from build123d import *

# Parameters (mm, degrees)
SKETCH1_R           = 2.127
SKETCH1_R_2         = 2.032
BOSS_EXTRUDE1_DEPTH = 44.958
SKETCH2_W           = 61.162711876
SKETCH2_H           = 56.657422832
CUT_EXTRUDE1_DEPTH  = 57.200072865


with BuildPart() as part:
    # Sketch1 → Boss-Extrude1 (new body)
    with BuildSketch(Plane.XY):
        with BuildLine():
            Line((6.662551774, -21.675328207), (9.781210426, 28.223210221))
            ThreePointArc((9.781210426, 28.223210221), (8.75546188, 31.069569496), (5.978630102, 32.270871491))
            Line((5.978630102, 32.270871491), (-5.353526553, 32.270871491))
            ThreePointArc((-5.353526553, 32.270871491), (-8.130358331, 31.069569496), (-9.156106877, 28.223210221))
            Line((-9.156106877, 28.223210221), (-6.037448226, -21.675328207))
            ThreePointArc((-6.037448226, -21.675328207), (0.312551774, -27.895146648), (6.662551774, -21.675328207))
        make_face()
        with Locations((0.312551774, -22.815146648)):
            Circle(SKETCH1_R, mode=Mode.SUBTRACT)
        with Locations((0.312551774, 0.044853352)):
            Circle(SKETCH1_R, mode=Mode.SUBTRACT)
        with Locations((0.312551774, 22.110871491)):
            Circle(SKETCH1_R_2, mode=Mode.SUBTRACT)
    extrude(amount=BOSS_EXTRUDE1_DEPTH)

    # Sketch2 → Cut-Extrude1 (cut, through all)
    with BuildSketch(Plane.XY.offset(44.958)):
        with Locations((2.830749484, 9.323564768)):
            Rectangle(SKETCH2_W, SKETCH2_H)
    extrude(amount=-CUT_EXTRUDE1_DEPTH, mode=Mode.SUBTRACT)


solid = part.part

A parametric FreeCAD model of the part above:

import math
import FreeCAD as App
import Part
import Sketcher

V = App.Vector
Q = App.Units.Quantity

doc = App.newDocument("Part")
params = doc.addObject("Spreadsheet::Sheet", "Params")
for row, (alias, value) in enumerate([
    ("sketch1_diameter", "0.16 in"),
    ("sketch1_radius", "0.15 in"),
    ("sketch1_radius2", "0.15 in"),
    ("pad1_length", "1.77 in"),
], start=1):
    params.set(f"A{row}", alias)
    params.set(f"B{row}", "=" + value)
    params.setAlias(f"B{row}", alias)

body = doc.addObject("PartDesign::Body", "Body")

sketch1 = body.newObject("Sketcher::SketchObject", "Sketch")
sketch1.AttachmentSupport = (doc.getObject("XY_Plane"), [""])
sketch1.MapMode = "FlatFace"
sketch1.addGeometry(Part.LineSegment(V(6.662552, -21.675328, 0), V(9.78121, 28.22321, 0)), False)
sketch1.addGeometry(Part.ArcOfCircle(Part.Circle(V(5.97863, 28.460871, 0), V(0, 0, 1), 3.81), math.radians(-3.576334), math.radians(90)), False)
sketch1.addGeometry(Part.LineSegment(V(5.97863, 32.270871, 0), V(-5.353527, 32.270871, 0)), False)
sketch1.addGeometry(Part.ArcOfCircle(Part.Circle(V(-5.353527, 28.460871, 0), V(0, 0, 1), 3.81), math.radians(90), math.radians(183.576334)), False)
sketch1.addGeometry(Part.LineSegment(V(-9.156107, 28.22321, 0), V(-6.037448, -21.675328, 0)), False)
sketch1.addGeometry(Part.ArcOfCircle(Part.Circle(V(0.312552, -21.543784, 0), V(0, 0, 1), 6.351362), math.radians(-178.813255), math.radians(-1.186745)), False)
sketch1.addGeometry(Part.Circle(V(0.312552, -22.815147, 0), V(0, 0, 1), 2.127), False)
sketch1.addGeometry(Part.Circle(V(0.312552, 0.044853, 0), V(0, 0, 1), 2.127), False)
sketch1.addGeometry(Part.Circle(V(0.312552, 22.110871, 0), V(0, 0, 1), 2.032), False)
sketch1.addConstraint(Sketcher.Constraint("Coincident", 0, 2, 1, 1))
sketch1.addConstraint(Sketcher.Constraint("Coincident", 1, 2, 2, 1))
sketch1.addConstraint(Sketcher.Constraint("Coincident", 2, 2, 3, 1))
sketch1.addConstraint(Sketcher.Constraint("Coincident", 3, 2, 4, 1))
sketch1.addConstraint(Sketcher.Constraint("Coincident", 4, 2, 5, 1))
sketch1.addConstraint(Sketcher.Constraint("Coincident", 5, 2, 0, 1))
sketch1.addConstraint(Sketcher.Constraint("Horizontal", 2))
sketch1.addConstraint(Sketcher.Constraint("Diameter", 8, Q("0.16 in")))
sketch1.addConstraint(Sketcher.Constraint("Radius", 1, Q("0.15 in")))
sketch1.addConstraint(Sketcher.Constraint("Radius", 3, Q("0.15 in")))
sketch1.addConstraint(Sketcher.Constraint("DistanceY", 6, 3, 7, 3, Q("0.9 in")))
sketch1.addConstraint(Sketcher.Constraint("DistanceY", 8, 3, 1, 2, Q("0.4 in")))
sketch1.addConstraint(Sketcher.Constraint("DistanceX", 4, 2, 5, 2, Q("0.5 in")))
sketch1.addConstraint(Sketcher.Constraint("Diameter", 6, Q("4.254 mm")))
sketch1.addConstraint(Sketcher.Constraint("Diameter", 7, Q("4.254 mm")))
sketch1.addConstraint(Sketcher.Constraint("DistanceX", 4, 2, 5, 3, Q("0.25 in")))
sketch1.addConstraint(Sketcher.Constraint("DistanceX", 4, 2, 6, 3, Q("0.25 in")))
sketch1.addConstraint(Sketcher.Constraint("DistanceX", 4, 2, 7, 3, Q("0.25 in")))
sketch1.addConstraint(Sketcher.Constraint("DistanceX", 4, 2, 8, 3, Q("0.25 in")))
sketch1.addConstraint(Sketcher.Constraint("Radius", 5, Q("6.351362 mm")))
sketch1.addConstraint(Sketcher.Constraint("Distance", 0, Q("49.995902 mm")))
sketch1.addConstraint(Sketcher.Constraint("Distance", 4, Q("49.995902 mm")))
sketch1.addConstraint(Sketcher.Constraint("DistanceY", 4, 2, 8, 3, Q("43.7862 mm")))
sketch1.addConstraint(Sketcher.Constraint("DistanceX", 2, 2, 2, 1, Q("11.332157 mm")))
sketch1.addConstraint(Sketcher.Constraint("DistanceX", -1, 1, 1, 3, Q("5.97863 mm")))
sketch1.addConstraint(Sketcher.Constraint("DistanceY", -1, 1, 1, 3, Q("28.460871 mm")))
sketch1.addConstraint(Sketcher.Constraint("DistanceX", -1, 1, 5, 3, Q("0.312552 mm")))
sketch1.addConstraint(Sketcher.Constraint("DistanceX", -1, 1, 1, 2, Q("5.97863 mm")))
sketch1.addConstraint(Sketcher.Constraint("DistanceY", -1, 1, 3, 2, Q("28.22321 mm")))
sketch1.addConstraint(Sketcher.Constraint("DistanceY", 6, 3, 3, 3, Q("51.276018 mm")))
sketch1.setExpression("Constraints[7]", "Params.sketch1_diameter")
sketch1.setExpression("Constraints[8]", "Params.sketch1_radius")
sketch1.setExpression("Constraints[9]", "Params.sketch1_radius2")
pad1 = body.newObject("PartDesign::Pad", "Pad")
pad1.Profile = sketch1
pad1.setExpression("Length", "Params.pad1_length")

sketch2 = body.newObject("Sketcher::SketchObject", "Sketch001")
sketch2.AttachmentSupport = (doc.getObject("XY_Plane"), [""])
sketch2.MapMode = "FlatFace"
sketch2.AttachmentOffset = App.Placement(V(0, 0, 1.77 * 25.4), App.Rotation())
sketch2.addGeometry(Part.LineSegment(V(-28, 38, 0), V(-28, -19, 0)), False)
sketch2.addGeometry(Part.LineSegment(V(-28, -19, 0), V(33, -19, 0)), False)
sketch2.addGeometry(Part.LineSegment(V(33, -19, 0), V(33, 38, 0)), False)
sketch2.addGeometry(Part.LineSegment(V(33, 38, 0), V(-28, 38, 0)), False)
sketch2.addConstraint(Sketcher.Constraint("Coincident", 0, 2, 1, 1))
sketch2.addConstraint(Sketcher.Constraint("Coincident", 1, 2, 2, 1))
sketch2.addConstraint(Sketcher.Constraint("Coincident", 2, 2, 3, 1))
sketch2.addConstraint(Sketcher.Constraint("Coincident", 3, 2, 0, 1))
sketch2.addConstraint(Sketcher.Constraint("Vertical", 0))
sketch2.addConstraint(Sketcher.Constraint("Horizontal", 1))
sketch2.addConstraint(Sketcher.Constraint("Vertical", 2))
sketch2.addConstraint(Sketcher.Constraint("Horizontal", 3))
sketch2.addConstraint(Sketcher.Constraint("DistanceX", 1, 1, 1, 2, Q("61.162712 mm")))
sketch2.addConstraint(Sketcher.Constraint("DistanceY", 0, 2, 0, 1, Q("56.657423 mm")))
sketch2.addConstraint(Sketcher.Constraint("DistanceX", 0, 2, -1, 1, Q("27.750606 mm")))
sketch2.addConstraint(Sketcher.Constraint("DistanceY", 0, 2, -1, 1, Q("19.005147 mm")))
pocket1 = body.newObject("PartDesign::Pocket", "Pocket")
pocket1.Profile = sketch2
pocket1.Type = "ThroughAll"

doc.recompute()
